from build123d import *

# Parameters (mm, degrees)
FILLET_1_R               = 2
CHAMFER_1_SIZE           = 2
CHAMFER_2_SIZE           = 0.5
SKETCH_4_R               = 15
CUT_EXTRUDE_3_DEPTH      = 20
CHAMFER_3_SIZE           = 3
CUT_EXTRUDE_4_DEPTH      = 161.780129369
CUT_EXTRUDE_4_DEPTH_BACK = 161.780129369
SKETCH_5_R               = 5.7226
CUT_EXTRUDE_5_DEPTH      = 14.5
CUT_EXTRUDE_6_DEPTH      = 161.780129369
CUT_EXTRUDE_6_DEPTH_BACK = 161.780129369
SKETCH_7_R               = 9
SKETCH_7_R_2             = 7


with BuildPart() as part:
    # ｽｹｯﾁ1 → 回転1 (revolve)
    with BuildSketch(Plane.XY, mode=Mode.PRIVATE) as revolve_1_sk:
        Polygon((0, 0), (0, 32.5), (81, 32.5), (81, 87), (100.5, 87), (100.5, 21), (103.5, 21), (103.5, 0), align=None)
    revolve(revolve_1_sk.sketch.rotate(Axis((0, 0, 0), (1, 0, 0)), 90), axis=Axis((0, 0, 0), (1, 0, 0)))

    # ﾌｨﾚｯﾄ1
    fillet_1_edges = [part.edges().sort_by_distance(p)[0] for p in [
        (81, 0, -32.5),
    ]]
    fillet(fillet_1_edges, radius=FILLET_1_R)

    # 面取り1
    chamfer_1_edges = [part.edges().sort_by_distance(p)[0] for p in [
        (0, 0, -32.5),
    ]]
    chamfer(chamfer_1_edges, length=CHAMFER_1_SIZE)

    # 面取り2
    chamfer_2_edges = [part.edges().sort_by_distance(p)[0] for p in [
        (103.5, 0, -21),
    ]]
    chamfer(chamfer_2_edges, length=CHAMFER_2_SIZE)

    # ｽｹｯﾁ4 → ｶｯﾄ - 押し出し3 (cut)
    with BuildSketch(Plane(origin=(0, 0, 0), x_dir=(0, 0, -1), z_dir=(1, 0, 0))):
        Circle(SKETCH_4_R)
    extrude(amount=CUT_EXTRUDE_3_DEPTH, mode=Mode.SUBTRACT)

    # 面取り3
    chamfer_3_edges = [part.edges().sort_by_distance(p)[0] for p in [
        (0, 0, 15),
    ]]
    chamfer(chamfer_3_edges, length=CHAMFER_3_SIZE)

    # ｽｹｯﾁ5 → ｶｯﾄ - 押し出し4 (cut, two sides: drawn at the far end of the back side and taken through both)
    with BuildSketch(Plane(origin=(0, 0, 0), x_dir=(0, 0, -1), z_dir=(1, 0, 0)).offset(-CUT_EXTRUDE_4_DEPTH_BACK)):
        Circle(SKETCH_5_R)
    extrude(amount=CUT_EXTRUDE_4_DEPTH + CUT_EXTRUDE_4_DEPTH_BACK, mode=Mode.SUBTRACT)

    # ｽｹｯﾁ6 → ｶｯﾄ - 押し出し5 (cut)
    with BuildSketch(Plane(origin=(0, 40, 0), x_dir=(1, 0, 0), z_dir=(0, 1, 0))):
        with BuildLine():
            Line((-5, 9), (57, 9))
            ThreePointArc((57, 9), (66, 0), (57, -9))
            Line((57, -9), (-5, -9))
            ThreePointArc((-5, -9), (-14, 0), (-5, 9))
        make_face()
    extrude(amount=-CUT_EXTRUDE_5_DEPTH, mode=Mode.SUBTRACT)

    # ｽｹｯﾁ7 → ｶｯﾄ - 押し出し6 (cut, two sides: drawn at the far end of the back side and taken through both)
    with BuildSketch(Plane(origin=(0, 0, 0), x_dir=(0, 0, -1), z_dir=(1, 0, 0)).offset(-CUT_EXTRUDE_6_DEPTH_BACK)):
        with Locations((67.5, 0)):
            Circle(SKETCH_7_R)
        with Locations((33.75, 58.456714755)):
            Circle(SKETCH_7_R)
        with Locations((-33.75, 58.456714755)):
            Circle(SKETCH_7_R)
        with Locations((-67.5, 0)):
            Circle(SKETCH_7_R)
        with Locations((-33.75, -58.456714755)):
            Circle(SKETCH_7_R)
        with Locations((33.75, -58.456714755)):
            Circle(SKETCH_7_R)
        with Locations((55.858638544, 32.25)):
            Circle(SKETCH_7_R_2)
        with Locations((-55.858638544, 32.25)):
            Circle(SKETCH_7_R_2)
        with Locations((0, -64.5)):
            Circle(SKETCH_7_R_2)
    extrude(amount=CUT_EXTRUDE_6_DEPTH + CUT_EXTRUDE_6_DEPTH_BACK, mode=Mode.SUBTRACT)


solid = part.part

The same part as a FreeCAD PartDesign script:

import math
import FreeCAD as App
import Part
import Sketcher

V = App.Vector


def edges_at(feature, points):
    """Names of the edges that pass closest to the given points."""
    edges = feature.Shape.Edges
    near = lambda p: min(range(len(edges)), key=lambda i: edges[i].distToShape(Part.Vertex(*p))[0])
    return sorted({f"Edge{near(p) + 1}" for p in points})


def add_polygon(sketch, points):
    """Adds a closed chain of lines whose ends are joined by coincident constraints."""
    first, n = sketch.GeometryCount, len(points)
    for a, b in zip(points, points[1:] + points[:1]):
        sketch.addGeometry(Part.LineSegment(App.Vector(*a, 0), App.Vector(*b, 0)), False)
    for i in range(n):
        sketch.addConstraint(Sketcher.Constraint("Coincident", first + i, 2, first + (i + 1) % n, 1))

doc = App.newDocument("Part")
body = doc.addObject("PartDesign::Body", "Body")

# Sketch on XY plane
sketch1 = doc.addObject("Sketcher::SketchObject", "Sketch")
body.addObject(sketch1)
sketch1.AttachmentSupport = (doc.XY_Plane, [""])
sketch1.MapMode = "FlatFace"
add_polygon(sketch1, [(0, 32.5), (0, 0), (103.5, 0), (103.5, 21), (100.5, 21), (100.5, 87), (81, 87), (81, 32.5)])  # lines 0-7
sketch1.addConstraint(Sketcher.Constraint("Vertical", 0))
sketch1.addConstraint(Sketcher.Constraint("Horizontal", 1))
sketch1.addConstraint(Sketcher.Constraint("Vertical", 2))
sketch1.addConstraint(Sketcher.Constraint("Horizontal", 3))
sketch1.addConstraint(Sketcher.Constraint("Vertical", 4))
sketch1.addConstraint(Sketcher.Constraint("Horizontal", 5))
sketch1.addConstraint(Sketcher.Constraint("Vertical", 6))
sketch1.addConstraint(Sketcher.Constraint("Horizontal", 7))
sketch1.addConstraint(Sketcher.Constraint("Coincident", 0, 2, -1, 1))
sketch1.addConstraint(Sketcher.Constraint("DistanceX", 3, 2, 3, 1, 3.0))
sketch1.addConstraint(Sketcher.Constraint("DistanceX", 7, 2, 7, 1, 81.0))
sketch1.addConstraint(Sketcher.Constraint("DistanceY", 2, 1, 2, 2, 21.0))
sketch1.addConstraint(Sketcher.Constraint("DistanceY", 4, 1, 4, 2, 66.0))
sketch1.addConstraint(Sketcher.Constraint("DistanceX", 1, 1, 1, 2, 103.5))
sketch1.addConstraint(Sketcher.Constraint("DistanceY", 0, 2, 0, 1, 32.5))
revolution = doc.addObject("PartDesign::Revolution", "Revolution")
body.addObject(revolution)
revolution.Profile = sketch1
revolution.ReferenceAxis = (sketch1, ["H_Axis"])
revolution.Angle = 360
doc.recompute()

fillet = doc.addObject("PartDesign::Fillet", "Fillet")
body.addObject(fillet)
fillet.Base = (revolution, edges_at(revolution, [(81, 0, -32.5)]))
fillet.Radius = 2
doc.recompute()

chamfer = doc.addObject("PartDesign::Chamfer", "Chamfer")
body.addObject(chamfer)
chamfer.Base = (fillet, edges_at(fillet, [(0, 0, -32.5)]))
chamfer.Size = 2
doc.recompute()

chamfer2 = doc.addObject("PartDesign::Chamfer", "Chamfer001")
body.addObject(chamfer2)
chamfer2.Base = (chamfer, edges_at(chamfer, [(103.5, 0, -21)]))
chamfer2.Size = 0.5

# Sketch on YZ plane
sketch2 = doc.addObject("Sketcher::SketchObject", "Sketch001")
body.addObject(sketch2)
sketch2.AttachmentSupport = (doc.YZ_Plane, [""])
sketch2.MapMode = "FlatFace"
sketch2.addGeometry(Part.Circle(V(0, 0, 0), V(0, 0, 1), 15), False)
sketch2.addConstraint(Sketcher.Constraint("Coincident", 0, 3, -1, 1))
sketch2.addConstraint(Sketcher.Constraint("Diameter", 0, 30.0))
pocket1 = doc.addObject("PartDesign::Pocket", "Pocket")
body.addObject(pocket1)
pocket1.Profile = sketch2
pocket1.Length = 20
pocket1.Reversed = True
doc.recompute()

chamfer3 = doc.addObject("PartDesign::Chamfer", "Chamfer002")
body.addObject(chamfer3)
chamfer3.Base = (pocket1, edges_at(pocket1, [(0, 0, 15)]))
chamfer3.Size = 3

# Sketch on YZ plane
sketch3 = doc.addObject("Sketcher::SketchObject", "Sketch002")
body.addObject(sketch3)
sketch3.AttachmentSupport = (doc.YZ_Plane, [""])
sketch3.MapMode = "FlatFace"
sketch3.addGeometry(Part.Circle(V(0, 0, 0), V(0, 0, 1), 5.7226), False)
sketch3.addConstraint(Sketcher.Constraint("Coincident", 0, 3, -1, 1))
sketch3.addConstraint(Sketcher.Constraint("Diameter", 0, 11.4452))
pocket2 = doc.addObject("PartDesign::Pocket", "Pocket001")
body.addObject(pocket2)
pocket2.Profile = sketch3
pocket2.Type = "ThroughAll"
pocket2.Midplane = True

# Sketch on XZ plane
sketch4 = doc.addObject("Sketcher::SketchObject", "Sketch003")
body.addObject(sketch4)
sketch4.AttachmentSupport = (doc.XZ_Plane, [""])
sketch4.MapMode = "FlatFace"
sketch4.AttachmentOffset = App.Placement(V(0, 0, -40), App.Rotation())
sketch4.addGeometry(Part.LineSegment(V(57, -9, 0), V(-5, -9, 0)), False)
sketch4.addGeometry(Part.ArcOfCircle(Part.Circle(V(-5, 0, 0), V(0, 0, 1), 9), math.radians(90), math.radians(270)), False)
sketch4.addGeometry(Part.LineSegment(V(-5, 9, 0), V(57, 9, 0)), False)
sketch4.addGeometry(Part.ArcOfCircle(Part.Circle(V(57, 0, 0), V(0, 0, 1), 9), math.radians(-90), math.radians(90)), False)
sketch4.addConstraint(Sketcher.Constraint("Tangent", 0, 2, 1, 2))
sketch4.addConstraint(Sketcher.Constraint("Tangent", 1, 1, 2, 1))
sketch4.addConstraint(Sketcher.Constraint("Tangent", 2, 2, 3, 2))
sketch4.addConstraint(Sketcher.Constraint("Tangent", 3, 1, 0, 1))
sketch4.addConstraint(Sketcher.Constraint("Horizontal", 0))
sketch4.addConstraint(Sketcher.Constraint("Horizontal", 2))
sketch4.addConstraint(Sketcher.Constraint("PointOnObject", 1, 3, -1))
sketch4.addConstraint(Sketcher.Constraint("Radius", 1, 9.0))
sketch4.addConstraint(Sketcher.Constraint("DistanceX", 0, 2, 0, 1, 62.0))
sketch4.addConstraint(Sketcher.Constraint("DistanceX", 1, 3, -1, 1, 5.0))
pocket3 = doc.addObject("PartDesign::Pocket", "Pocket002")
body.addObject(pocket3)
pocket3.Profile = sketch4
pocket3.Length = 14.5
pocket3.Reversed = True

# Sketch on YZ plane
sketch5 = doc.addObject("Sketcher::SketchObject", "Sketch004")
body.addObject(sketch5)
sketch5.AttachmentSupport = (doc.YZ_Plane, [""])
sketch5.MapMode = "FlatFace"
sketch5.addGeometry(Part.Circle(V(0, -67.5, 0), V(0, 0, 1), 9), False)
sketch5.addGeometry(Part.Circle(V(58.456715, -33.75, 0), V(0, 0, 1), 9), False)
sketch5.addGeometry(Part.Circle(V(58.456715, 33.75, 0), V(0, 0, 1), 9), False)
sketch5.addGeometry(Part.Circle(V(0, 67.5, 0), V(0, 0, 1), 9), False)
sketch5.addGeometry(Part.Circle(V(-58.456715, 33.75, 0), V(0, 0, 1), 9), False)
sketch5.addGeometry(Part.Circle(V(-58.456715, -33.75, 0), V(0, 0, 1), 9), False)
sketch5.addGeometry(Part.Circle(V(32.25, -55.858639, 0), V(0, 0, 1), 7), False)
sketch5.addGeometry(Part.Circle(V(32.25, 55.858639, 0), V(0, 0, 1), 7), False)
sketch5.addGeometry(Part.Circle(V(-64.5, 0, 0), V(0, 0, 1), 7), False)
sketch5.addConstraint(Sketcher.Constraint("Equal", 0, 1))
sketch5.addConstraint(Sketcher.Constraint("Equal", 1, 2))
sketch5.addConstraint(Sketcher.Constraint("Equal", 2, 3))
sketch5.addConstraint(Sketcher.Constraint("Equal", 3, 4))
sketch5.addConstraint(Sketcher.Constraint("Equal", 4, 5))
sketch5.addConstraint(Sketcher.Constraint("Equal", 6, 7))
sketch5.addConstraint(Sketcher.Constraint("Equal", 7, 8))
sketch5.addConstraint(Sketcher.Constraint("Symmetric", 0, 3, 3, 3, -1, 1))
sketch5.addConstraint(Sketcher.Constraint("Symmetric", 1, 3, 4, 3, -1, 1))
sketch5.addConstraint(Sketcher.Constraint("Symmetric", 2, 3, 5, 3, -1, 1))
sketch5.addConstraint(Sketcher.Constraint("Symmetric", 2, 3, 4, 3, -2))
sketch5.addConstraint(Sketcher.Constraint("Symmetric", 6, 3, 7, 3, -1))
sketch5.addConstraint(Sketcher.Constraint("PointOnObject", 0, 3, -2))
sketch5.addConstraint(Sketcher.Constraint("PointOnObject", 8, 3, -1))
sketch5.addConstraint(Sketcher.Constraint("Diameter", 0, 18.0))
sketch5.addConstraint(Sketcher.Constraint("Diameter", 6, 14.0))
sketch5.addConstraint(Sketcher.Constraint("DistanceY", 0, 3, 3, 3, 135.0))
sketch5.addConstraint(Sketcher.Constraint("DistanceX", 8, 3, -1, 1, 64.5))
sketch5.addConstraint(Sketcher.Constraint("DistanceY", 1, 3, 2, 3, 67.5))
sketch5.addConstraint(Sketcher.Constraint("DistanceX", -1, 1, 6, 3, 32.25))
sketch5.addConstraint(Sketcher.Constraint("DistanceY", 6, 3, -1, 1, 55.858639))
sketch5.addConstraint(Sketcher.Constraint("DistanceX", 4, 3, 2, 3, 116.91343))
pocket4 = doc.addObject("PartDesign::Pocket", "Pocket003")
body.addObject(pocket4)
pocket4.Profile = sketch5
pocket4.Type = "ThroughAll"
pocket4.Midplane = True

doc.recompute()
